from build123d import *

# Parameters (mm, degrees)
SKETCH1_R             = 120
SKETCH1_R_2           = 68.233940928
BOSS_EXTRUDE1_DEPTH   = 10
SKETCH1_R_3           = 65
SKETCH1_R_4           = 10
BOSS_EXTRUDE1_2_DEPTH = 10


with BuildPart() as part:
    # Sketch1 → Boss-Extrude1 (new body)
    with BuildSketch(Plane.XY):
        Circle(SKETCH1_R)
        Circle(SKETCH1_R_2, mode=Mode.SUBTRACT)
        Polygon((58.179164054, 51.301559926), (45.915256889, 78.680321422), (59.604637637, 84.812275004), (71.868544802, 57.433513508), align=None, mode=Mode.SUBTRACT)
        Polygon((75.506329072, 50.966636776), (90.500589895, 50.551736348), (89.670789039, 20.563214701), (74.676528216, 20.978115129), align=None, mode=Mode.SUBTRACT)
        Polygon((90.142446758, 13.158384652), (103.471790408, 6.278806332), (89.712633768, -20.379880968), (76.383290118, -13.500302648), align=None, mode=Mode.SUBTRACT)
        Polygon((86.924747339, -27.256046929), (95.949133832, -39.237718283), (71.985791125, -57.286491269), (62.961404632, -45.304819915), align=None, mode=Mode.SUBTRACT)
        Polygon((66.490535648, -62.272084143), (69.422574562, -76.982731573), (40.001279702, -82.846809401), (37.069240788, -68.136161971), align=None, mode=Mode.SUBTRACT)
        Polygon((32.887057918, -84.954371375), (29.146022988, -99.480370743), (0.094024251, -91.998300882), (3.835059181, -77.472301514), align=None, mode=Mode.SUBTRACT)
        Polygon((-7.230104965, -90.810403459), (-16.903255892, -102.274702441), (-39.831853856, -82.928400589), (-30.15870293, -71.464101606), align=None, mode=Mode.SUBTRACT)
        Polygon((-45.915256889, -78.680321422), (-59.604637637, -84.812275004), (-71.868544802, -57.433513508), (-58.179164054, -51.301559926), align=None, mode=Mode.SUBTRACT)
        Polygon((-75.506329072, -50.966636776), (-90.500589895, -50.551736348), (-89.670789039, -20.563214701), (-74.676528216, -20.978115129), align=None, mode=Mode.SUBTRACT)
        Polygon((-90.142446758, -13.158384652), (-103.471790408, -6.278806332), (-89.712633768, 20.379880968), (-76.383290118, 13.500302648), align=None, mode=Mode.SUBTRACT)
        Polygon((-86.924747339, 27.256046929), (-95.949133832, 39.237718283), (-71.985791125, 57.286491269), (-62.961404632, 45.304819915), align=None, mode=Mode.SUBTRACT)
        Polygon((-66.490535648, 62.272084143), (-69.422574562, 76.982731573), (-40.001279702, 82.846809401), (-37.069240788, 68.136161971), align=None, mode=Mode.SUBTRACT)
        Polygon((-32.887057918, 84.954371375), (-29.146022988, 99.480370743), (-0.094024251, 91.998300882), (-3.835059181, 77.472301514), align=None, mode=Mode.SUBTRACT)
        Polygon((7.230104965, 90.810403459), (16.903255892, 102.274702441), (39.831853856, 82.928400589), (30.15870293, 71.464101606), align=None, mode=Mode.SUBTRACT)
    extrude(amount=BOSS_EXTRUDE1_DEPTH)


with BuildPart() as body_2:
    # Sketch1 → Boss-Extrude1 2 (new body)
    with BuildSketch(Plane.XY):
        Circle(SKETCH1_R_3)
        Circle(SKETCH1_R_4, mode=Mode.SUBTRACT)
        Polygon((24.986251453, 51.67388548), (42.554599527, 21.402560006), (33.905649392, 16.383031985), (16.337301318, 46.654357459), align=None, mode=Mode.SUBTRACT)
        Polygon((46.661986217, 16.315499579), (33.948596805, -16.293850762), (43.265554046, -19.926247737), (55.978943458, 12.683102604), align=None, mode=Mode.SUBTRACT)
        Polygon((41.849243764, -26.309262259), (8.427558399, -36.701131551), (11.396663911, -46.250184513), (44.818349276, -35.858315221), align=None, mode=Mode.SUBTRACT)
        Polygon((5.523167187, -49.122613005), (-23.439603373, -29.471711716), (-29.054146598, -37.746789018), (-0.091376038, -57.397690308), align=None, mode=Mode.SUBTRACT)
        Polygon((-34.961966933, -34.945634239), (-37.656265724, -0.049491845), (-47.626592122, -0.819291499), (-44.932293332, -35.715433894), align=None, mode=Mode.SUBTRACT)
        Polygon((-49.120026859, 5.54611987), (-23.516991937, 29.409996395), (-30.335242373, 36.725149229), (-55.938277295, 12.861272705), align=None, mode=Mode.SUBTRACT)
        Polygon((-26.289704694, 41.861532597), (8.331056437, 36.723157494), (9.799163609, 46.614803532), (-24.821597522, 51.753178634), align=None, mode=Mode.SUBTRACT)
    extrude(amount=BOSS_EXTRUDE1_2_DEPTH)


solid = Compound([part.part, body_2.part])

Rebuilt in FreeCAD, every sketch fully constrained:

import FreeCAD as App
import Part
import Sketcher
from FreeCAD import Vector

doc = App.newDocument("Part")
body = doc.addObject("PartDesign::Body", "Body")

sketch1 = body.newObject("Sketcher::SketchObject", "Sketch")
sketch1.AttachmentSupport = (doc.getObject("XY_Plane"), [""])
sketch1.MapMode = "FlatFace"
sketch1.addGeometry([
    Part.Circle(Vector(0, 0, 0), Vector(0, 0, 1), 120),
    Part.LineSegment(Vector(-58.179164, -51.30156, 0), Vector(-45.915257, -78.680321, 0)),
    Part.LineSegment(Vector(-45.915257, -78.680321, 0), Vector(-59.604638, -84.812275, 0)),
    Part.LineSegment(Vector(-59.604638, -84.812275, 0), Vector(-71.868545, -57.433514, 0)),
    Part.LineSegment(Vector(-71.868545, -57.433514, 0), Vector(-58.179164, -51.30156, 0)),
    Part.LineSegment(Vector(-30.158703, -71.464102, 0), Vector(-7.230105, -90.810403, 0)),
    Part.LineSegment(Vector(-7.230105, -90.810403, 0), Vector(-16.903256, -102.274702, 0)),
    Part.LineSegment(Vector(-16.903256, -102.274702, 0), Vector(-39.831854, -82.928401, 0)),
    Part.LineSegment(Vector(-39.831854, -82.928401, 0), Vector(-30.158703, -71.464102, 0)),
    Part.LineSegment(Vector(-74.676528, -20.978115, 0), Vector(-75.506329, -50.966637, 0)),
    Part.LineSegment(Vector(-75.506329, -50.966637, 0), Vector(-90.50059, -50.551736, 0)),
    Part.LineSegment(Vector(-90.50059, -50.551736, 0), Vector(-89.670789, -20.563215, 0)),
    Part.LineSegment(Vector(-89.670789, -20.563215, 0), Vector(-74.676528, -20.978115, 0)),
    Part.LineSegment(Vector(3.835059, -77.472302, 0), Vector(32.887058, -84.954371, 0)),
    Part.LineSegment(Vector(32.887058, -84.954371, 0), Vector(29.146023, -99.480371, 0)),
    Part.LineSegment(Vector(29.146023, -99.480371, 0), Vector(0.094024, -91.998301, 0)),
    Part.LineSegment(Vector(0.094024, -91.998301, 0), Vector(3.835059, -77.472302, 0)),
    Part.LineSegment(Vector(37.069241, -68.136162, 0), Vector(66.490536, -62.272084, 0)),
    Part.LineSegment(Vector(66.490536, -62.272084, 0), Vector(69.422575, -76.982732, 0)),
    Part.LineSegment(Vector(69.422575, -76.982732, 0), Vector(40.00128, -82.846809, 0)),
    Part.LineSegment(Vector(40.00128, -82.846809, 0), Vector(37.069241, -68.136162, 0)),
    Part.LineSegment(Vector(62.961405, -45.30482, 0), Vector(86.924747, -27.256047, 0)),
    Part.LineSegment(Vector(86.924747, -27.256047, 0), Vector(95.949134, -39.237718, 0)),
    Part.LineSegment(Vector(95.949134, -39.237718, 0), Vector(71.985791, -57.286491, 0)),
    Part.LineSegment(Vector(71.985791, -57.286491, 0), Vector(62.961405, -45.30482, 0)),
    Part.LineSegment(Vector(76.38329, -13.500303, 0), Vector(90.142447, 13.158385, 0)),
    Part.LineSegment(Vector(90.142447, 13.158385, 0), Vector(103.47179, 6.278806, 0)),
    Part.LineSegment(Vector(103.47179, 6.278806, 0), Vector(89.712634, -20.379881, 0)),
    Part.LineSegment(Vector(89.712634, -20.379881, 0), Vector(76.38329, -13.500303, 0)),
    Part.LineSegment(Vector(-76.38329, 13.500303, 0), Vector(-90.142447, -13.158385, 0)),
    Part.LineSegment(Vector(-90.142447, -13.158385, 0), Vector(-103.47179, -6.278806, 0)),
    Part.LineSegment(Vector(-103.47179, -6.278806, 0), Vector(-89.712634, 20.379881, 0)),
    Part.LineSegment(Vector(-89.712634, 20.379881, 0), Vector(-76.38329, 13.500303, 0)),
    Part.LineSegment(Vector(-62.961405, 45.30482, 0), Vector(-86.924747, 27.256047, 0)),
    Part.LineSegment(Vector(-86.924747, 27.256047, 0), Vector(-95.949134, 39.237718, 0)),
    Part.LineSegment(Vector(-95.949134, 39.237718, 0), Vector(-71.985791, 57.286491, 0)),
    Part.LineSegment(Vector(-71.985791, 57.286491, 0), Vector(-62.961405, 45.30482, 0)),
    Part.LineSegment(Vector(-37.069241, 68.136162, 0), Vector(-66.490536, 62.272084, 0)),
    Part.LineSegment(Vector(-66.490536, 62.272084, 0), Vector(-69.422575, 76.982732, 0)),
    Part.LineSegment(Vector(-69.422575, 76.982732, 0), Vector(-40.00128, 82.846809, 0)),
    Part.LineSegment(Vector(-40.00128, 82.846809, 0), Vector(-37.069241, 68.136162, 0)),
    Part.LineSegment(Vector(-3.835059, 77.472302, 0), Vector(-32.887058, 84.954371, 0)),
    Part.LineSegment(Vector(-32.887058, 84.954371, 0), Vector(-29.146023, 99.480371, 0)),
    Part.LineSegment(Vector(-29.146023, 99.480371, 0), Vector(-0.094024, 91.998301, 0)),
    Part.LineSegment(Vector(-0.094024, 91.998301, 0), Vector(-3.835059, 77.472302, 0)),
    Part.Circle(Vector(0, 0, 0), Vector(0, 0, 1), 68.233941),
    Part.LineSegment(Vector(74.676528, 20.978115, 0), Vector(75.506329, 50.966637, 0)),
    Part.LineSegment(Vector(75.506329, 50.966637, 0), Vector(90.50059, 50.551736, 0)),
    Part.LineSegment(Vector(90.50059, 50.551736, 0), Vector(89.670789, 20.563215, 0)),
    Part.LineSegment(Vector(89.670789, 20.563215, 0), Vector(74.676528, 20.978115, 0)),
    Part.LineSegment(Vector(30.158703, 71.464102, 0), Vector(7.230105, 90.810403, 0)),
    Part.LineSegment(Vector(7.230105, 90.810403, 0), Vector(16.903256, 102.274702, 0)),
    Part.LineSegment(Vector(16.903256, 102.274702, 0), Vector(39.831854, 82.928401, 0)),
    Part.LineSegment(Vector(39.831854, 82.928401, 0), Vector(30.158703, 71.464102, 0)),
    Part.LineSegment(Vector(71.868545, 57.433514, 0), Vector(58.179164, 51.30156, 0)),
    Part.LineSegment(Vector(58.179164, 51.30156, 0), Vector(45.915257, 78.680321, 0)),
    Part.LineSegment(Vector(45.915257, 78.680321, 0), Vector(59.604638, 84.812275, 0)),
    Part.LineSegment(Vector(59.604638, 84.812275, 0), Vector(71.868545, 57.433514, 0)),
], False)
sketch1.addConstraint([
    Sketcher.Constraint("Coincident", 1, 2, 2, 1),
    Sketcher.Constraint("Coincident", 2, 2, 3, 1),
    Sketcher.Constraint("Coincident", 3, 2, 4, 1),
    Sketcher.Constraint("Coincident", 4, 2, 1, 1),
    Sketcher.Constraint("Coincident", 5, 2, 6, 1),
    Sketcher.Constraint("Coincident", 6, 2, 7, 1),
    Sketcher.Constraint("Coincident", 7, 2, 8, 1),
    Sketcher.Constraint("Coincident", 8, 2, 5, 1),
    Sketcher.Constraint("Coincident", 9, 2, 10, 1),
    Sketcher.Constraint("Coincident", 10, 2, 11, 1),
    Sketcher.Constraint("Coincident", 11, 2, 12, 1),
    Sketcher.Constraint("Coincident", 12, 2, 9, 1),
    Sketcher.Constraint("Coincident", 13, 2, 14, 1),
    Sketcher.Constraint("Coincident", 14, 2, 15, 1),
    Sketcher.Constraint("Coincident", 15, 2, 16, 1),
    Sketcher.Constraint("Coincident", 16, 2, 13, 1),
    Sketcher.Constraint("Coincident", 17, 2, 18, 1),
    Sketcher.Constraint("Coincident", 18, 2, 19, 1),
    Sketcher.Constraint("Coincident", 19, 2, 20, 1),
    Sketcher.Constraint("Coincident", 20, 2, 17, 1),
    Sketcher.Constraint("Coincident", 21, 2, 22, 1),
    Sketcher.Constraint("Coincident", 22, 2, 23, 1),
    Sketcher.Constraint("Coincident", 23, 2, 24, 1),
    Sketcher.Constraint("Coincident", 24, 2, 21, 1),
    Sketcher.Constraint("Coincident", 25, 2, 26, 1),
    Sketcher.Constraint("Coincident", 26, 2, 27, 1),
    Sketcher.Constraint("Coincident", 27, 2, 28, 1),
    Sketcher.Constraint("Coincident", 28, 2, 25, 1),
    Sketcher.Constraint("Coincident", 29, 2, 30, 1),
    Sketcher.Constraint("Coincident", 30, 2, 31, 1),
    Sketcher.Constraint("Coincident", 31, 2, 32, 1),
    Sketcher.Constraint("Coincident", 32, 2, 29, 1),
    Sketcher.Constraint("Coincident", 33, 2, 34, 1),
    Sketcher.Constraint("Coincident", 34, 2, 35, 1),
    Sketcher.Constraint("Coincident", 35, 2, 36, 1),
    Sketcher.Constraint("Coincident", 36, 2, 33, 1),
    Sketcher.Constraint("Coincident", 37, 2, 38, 1),
    Sketcher.Constraint("Coincident", 38, 2, 39, 1),
    Sketcher.Constraint("Coincident", 39, 2, 40, 1),
    Sketcher.Constraint("Coincident", 40, 2, 37, 1),
    Sketcher.Constraint("Coincident", 41, 2, 42, 1),
    Sketcher.Constraint("Coincident", 42, 2, 43, 1),
    Sketcher.Constraint("Coincident", 43, 2, 44, 1),
    Sketcher.Constraint("Coincident", 44, 2, 41, 1),
    Sketcher.Constraint("Coincident", 46, 2, 47, 1),
    Sketcher.Constraint("Coincident", 47, 2, 48, 1),
    Sketcher.Constraint("Coincident", 48, 2, 49, 1),
    Sketcher.Constraint("Coincident", 49, 2, 46, 1),
    Sketcher.Constraint("Coincident", 50, 2, 51, 1),
    Sketcher.Constraint("Coincident", 51, 2, 52, 1),
    Sketcher.Constraint("Coincident", 52, 2, 53, 1),
    Sketcher.Constraint("Coincident", 53, 2, 50, 1),
    Sketcher.Constraint("Coincident", 54, 2, 55, 1),
    Sketcher.Constraint("Coincident", 55, 2, 56, 1),
    Sketcher.Constraint("Coincident", 56, 2, 57, 1),
    Sketcher.Constraint("Coincident", 57, 2, 54, 1),
    Sketcher.Constraint("Coincident", 0, 3, -1, 1),
    Sketcher.Constraint("Coincident", 45, 3, -1, 1),
    Sketcher.Constraint("Symmetric", 25, 2, 29, 2, -1, 1),
    Sketcher.Constraint("Symmetric", 26, 2, 30, 2, -1, 1),
    Sketcher.Constraint("Symmetric", 27, 2, 31, 2, -1, 1),
    Sketcher.Constraint("Symmetric", 28, 2, 32, 2, -1, 1),
    Sketcher.Constraint("Symmetric", 21, 2, 33, 2, -1, 1),
    Sketcher.Constraint("Symmetric", 22, 2, 34, 2, -1, 1),
    Sketcher.Constraint("Symmetric", 23, 2, 35, 2, -1, 1),
    Sketcher.Constraint("Symmetric", 24, 2, 36, 2, -1, 1),
    Sketcher.Constraint("Symmetric", 17, 2, 37, 2, -1, 1),
    Sketcher.Constraint("Symmetric", 18, 2, 38, 2, -1, 1),
    Sketcher.Constraint("Symmetric", 19, 2, 39, 2, -1, 1),
    Sketcher.Constraint("Symmetric", 20, 2, 40, 2, -1, 1),
    Sketcher.Constraint("Symmetric", 13, 2, 41, 2, -1, 1),
    Sketcher.Constraint("Symmetric", 14, 2, 42, 2, -1, 1),
    Sketcher.Constraint("Symmetric", 15, 2, 43, 2, -1, 1),
    Sketcher.Constraint("Symmetric", 16, 2, 44, 2, -1, 1),
    Sketcher.Constraint("Symmetric", 9, 2, 46, 2, -1, 1),
    Sketcher.Constraint("Symmetric", 10, 2, 47, 2, -1, 1),
    Sketcher.Constraint("Symmetric", 11, 2, 48, 2, -1, 1),
    Sketcher.Constraint("Symmetric", 12, 2, 49, 2, -1, 1),
    Sketcher.Constraint("Symmetric", 5, 2, 50, 2, -1, 1),
    Sketcher.Constraint("Symmetric", 6, 2, 51, 2, -1, 1),
    Sketcher.Constraint("Symmetric", 7, 2, 52, 2, -1, 1),
    Sketcher.Constraint("Symmetric", 8, 2, 53, 2, -1, 1),
    Sketcher.Constraint("Symmetric", 4, 2, 54, 2, -1, 1),
    Sketcher.Constraint("Symmetric", 1, 2, 55, 2, -1, 1),
    Sketcher.Constraint("Symmetric", 2, 2, 56, 2, -1, 1),
    Sketcher.Constraint("Symmetric", 3, 2, 57, 2, -1, 1),
    Sketcher.Constraint("Perpendicular", 1, 2),
    Sketcher.Constraint("Perpendicular", 2, 3),
    Sketcher.Constraint("Perpendicular", 3, 4),
    Sketcher.Constraint("Perpendicular", 5, 6),
    Sketcher.Constraint("Perpendicular", 6, 7),
    Sketcher.Constraint("Perpendicular", 7, 8),
    Sketcher.Constraint("Perpendicular", 9, 10),
    Sketcher.Constraint("Perpendicular", 10, 11),
    Sketcher.Constraint("Perpendicular", 11, 12),
    Sketcher.Constraint("Perpendicular", 13, 14),
    Sketcher.Constraint("Perpendicular", 14, 15),
    Sketcher.Constraint("Perpendicular", 15, 16),
    Sketcher.Constraint("Perpendicular", 17, 18),
    Sketcher.Constraint("Perpendicular", 18, 19),
    Sketcher.Constraint("Perpendicular", 19, 20),
    Sketcher.Constraint("Perpendicular", 21, 22),
    Sketcher.Constraint("Perpendicular", 22, 23),
    Sketcher.Constraint("Perpendicular", 23, 24),
    Sketcher.Constraint("Perpendicular", 25, 26),
    Sketcher.Constraint("Perpendicular", 26, 27),
    Sketcher.Constraint("Perpendicular", 27, 28),
    Sketcher.Constraint("Equal", 3, 5),
    Sketcher.Constraint("Equal", 4, 6),
    Sketcher.Constraint("Equal", 7, 9),
    Sketcher.Constraint("Equal", 8, 10),
    Sketcher.Constraint("Equal", 11, 13),
    Sketcher.Constraint("Equal", 12, 14),
    Sketcher.Constraint("Equal", 15, 17),
    Sketcher.Constraint("Equal", 16, 18),
    Sketcher.Constraint("Equal", 19, 21),
    Sketcher.Constraint("Equal", 20, 22),
    Sketcher.Constraint("Equal", 23, 25),
    Sketcher.Constraint("Equal", 24, 26),
    Sketcher.Constraint("Diameter", 0, 240.0),
    Sketcher.Constraint("Distance", 1, 30.0),
    Sketcher.Constraint("Distance", 2, 15.0),
    Sketcher.Constraint("Diameter", 45, 136.467882),
    Sketcher.Constraint("DistanceX", 1, 2, 6, 2, 29.012001),
    Sketcher.Constraint("DistanceY", 14, 2, 13, 2, 14.525999),
    Sketcher.Constraint("DistanceX", 23, 2, 26, 2, 31.485999),
    Sketcher.Constraint("DistanceX", 30, 2, 11, 2, 13.801001),
    Sketcher.Constraint("DistanceY", 7, 2, -1, 1, 82.928401),
    Sketcher.Constraint("DistanceY", 8, 2, -1, 1, 71.464102),
    Sketcher.Constraint("DistanceY", 15, 2, -1, 1, 91.998301),
    Sketcher.Constraint("DistanceY", 9, 2, 10, 2, 0.4149),
    Sketcher.Constraint("DistanceY", 3, 2, 11, 2, 36.870299),
    Sketcher.Constraint("DistanceX", 17, 2, 22, 2, 29.458598),
    Sketcher.Constraint("DistanceY", 24, 2, 22, 2, 6.067102),
    Sketcher.Constraint("DistanceX", 21, 2, 25, 2, 3.217699),
    Sketcher.Constraint("DistanceX", 29, 2, 3, 2, 18.273902),
    Sketcher.Constraint("DistanceY", 1, 2, -1, 1, 78.680321),
    Sketcher.Constraint("DistanceY", 4, 2, -1, 1, 51.30156),
    Sketcher.Constraint("DistanceX", 9, 2, -1, 1, 75.506329),
    Sketcher.Constraint("DistanceX", -1, 1, 16, 2, 3.835059),
    Sketcher.Constraint("DistanceY", 18, 2, -1, 1, 76.982732),
    Sketcher.Constraint("DistanceX", -1, 1, 19, 2, 40.00128),
    Sketcher.Constraint("DistanceY", 22, 2, -1, 1, 39.237718),
    Sketcher.Constraint("DistanceY", 27, 2, -1, 1, 20.379881),
])
pad1 = body.newObject("PartDesign::Pad", "Pad")
pad1.Profile = sketch1
pad1.Length = 10
body2 = doc.addObject("PartDesign::Body", "Body001")

sketch2 = body2.newObject("Sketcher::SketchObject", "Sketch001")
sketch2.AttachmentSupport = (doc.getObject("XY_Plane001"), [""])
sketch2.MapMode = "FlatFace"
sketch2.addGeometry([
    Part.Circle(Vector(0, 0, 0), Vector(0, 0, 1), 65),
    Part.LineSegment(Vector(-23.439603, -29.471712, 0), Vector(5.523167, -49.122613, 0)),
    Part.LineSegment(Vector(5.523167, -49.122613, 0), Vector(-0.091376, -57.39769, 0)),
    Part.LineSegment(Vector(-0.091376, -57.39769, 0), Vector(-29.054147, -37.746789, 0)),
    Part.LineSegment(Vector(-29.054147, -37.746789, 0), Vector(-23.439603, -29.471712, 0)),
    Part.LineSegment(Vector(-37.656266, -0.049492, 0), Vector(-34.961967, -34.945634, 0)),
    Part.LineSegment(Vector(-34.961967, -34.945634, 0), Vector(-44.932293, -35.715434, 0)),
    Part.LineSegment(Vector(-44.932293, -35.715434, 0), Vector(-47.626592, -0.819291, 0)),
    Part.LineSegment(Vector(-47.626592, -0.819291, 0), Vector(-37.656266, -0.049492, 0)),
    Part.LineSegment(Vector(8.427558, -36.701132, 0), Vector(41.849244, -26.309262, 0)),
    Part.LineSegment(Vector(41.849244, -26.309262, 0), Vector(44.818349, -35.858315, 0)),
    Part.LineSegment(Vector(44.818349, -35.858315, 0), Vector(11.396664, -46.250185, 0)),
    Part.LineSegment(Vector(11.396664, -46.250185, 0), Vector(8.427558, -36.701132, 0)),
    Part.LineSegment(Vector(-23.516992, 29.409996, 0), Vector(-49.120027, 5.54612, 0)),
    Part.LineSegment(Vector(-49.120027, 5.54612, 0), Vector(-55.938277, 12.861273, 0)),
    Part.LineSegment(Vector(-55.938277, 12.861273, 0), Vector(-30.335242, 36.725149, 0)),
    Part.LineSegment(Vector(-30.335242, 36.725149, 0), Vector(-23.516992, 29.409996, 0)),
    Part.Circle(Vector(0, 0, 0), Vector(0, 0, 1), 10),
    Part.LineSegment(Vector(8.331056, 36.723157, 0), Vector(-26.289705, 41.861533, 0)),
    Part.LineSegment(Vector(-26.289705, 41.861533, 0), Vector(-24.821598, 51.753179, 0)),
    Part.LineSegment(Vector(-24.821598, 51.753179, 0), Vector(9.799164, 46.614804, 0)),
    Part.LineSegment(Vector(9.799164, 46.614804, 0), Vector(8.331056, 36.723157, 0)),
    Part.LineSegment(Vector(33.948597, -16.293851, 0), Vector(46.661986, 16.3155, 0)),
    Part.LineSegment(Vector(46.661986, 16.3155, 0), Vector(55.978943, 12.683103, 0)),
    Part.LineSegment(Vector(55.978943, 12.683103, 0), Vector(43.265554, -19.926248, 0)),
    Part.LineSegment(Vector(43.265554, -19.926248, 0), Vector(33.948597, -16.293851, 0)),
    Part.LineSegment(Vector(16.337301, 46.654357, 0), Vector(24.986251, 51.673885, 0)),
    Part.LineSegment(Vector(24.986251, 51.673885, 0), Vector(42.5546, 21.40256, 0)),
    Part.LineSegment(Vector(42.5546, 21.40256, 0), Vector(33.905649, 16.383032, 0)),
    Part.LineSegment(Vector(33.905649, 16.383032, 0), Vector(16.337301, 46.654357, 0)),
], False)
sketch2.addConstraint([
    Sketcher.Constraint("Coincident", 1, 2, 2, 1),
    Sketcher.Constraint("Coincident", 2, 2, 3, 1),
    Sketcher.Constraint("Coincident", 3, 2, 4, 1),
    Sketcher.Constraint("Coincident", 4, 2, 1, 1),
    Sketcher.Constraint("Coincident", 5, 2, 6, 1),
    Sketcher.Constraint("Coincident", 6, 2, 7, 1),
    Sketcher.Constraint("Coincident", 7, 2, 8, 1),
    Sketcher.Constraint("Coincident", 8, 2, 5, 1),
    Sketcher.Constraint("Coincident", 9, 2, 10, 1),
    Sketcher.Constraint("Coincident", 10, 2, 11, 1),
    Sketcher.Constraint("Coincident", 11, 2, 12, 1),
    Sketcher.Constraint("Coincident", 12, 2, 9, 1),
    Sketcher.Constraint("Coincident", 13, 2, 14, 1),
    Sketcher.Constraint("Coincident", 14, 2, 15, 1),
    Sketcher.Constraint("Coincident", 15, 2, 16, 1),
    Sketcher.Constraint("Coincident", 16, 2, 13, 1),
    Sketcher.Constraint("Coincident", 18, 2, 19, 1),
    Sketcher.Constraint("Coincident", 19, 2, 20, 1),
    Sketcher.Constraint("Coincident", 20, 2, 21, 1),
    Sketcher.Constraint("Coincident", 21, 2, 18, 1),
    Sketcher.Constraint("Coincident", 22, 2, 23, 1),
    Sketcher.Constraint("Coincident", 23, 2, 24, 1),
    Sketcher.Constraint("Coincident", 24, 2, 25, 1),
    Sketcher.Constraint("Coincident", 25, 2, 22, 1),
    Sketcher.Constraint("Coincident", 26, 2, 27, 1),
    Sketcher.Constraint("Coincident", 27, 2, 28, 1),
    Sketcher.Constraint("Coincident", 28, 2, 29, 1),
    Sketcher.Constraint("Coincident", 29, 2, 26, 1),
    Sketcher.Constraint("Coincident", 0, 3, -1, 1),
    Sketcher.Constraint("Coincident", 17, 3, -1, 1),
    Sketcher.Constraint("Perpendicular", 1, 2),
    Sketcher.Constraint("Perpendicular", 2, 3),
    Sketcher.Constraint("Perpendicular", 3, 4),
    Sketcher.Constraint("Perpendicular", 5, 6),
    Sketcher.Constraint("Perpendicular", 6, 7),
    Sketcher.Constraint("Perpendicular", 7, 8),
    Sketcher.Constraint("Perpendicular", 9, 10),
    Sketcher.Constraint("Perpendicular", 10, 11),
    Sketcher.Constraint("Perpendicular", 11, 12),
    Sketcher.Constraint("Perpendicular", 13, 14),
    Sketcher.Constraint("Perpendicular", 14, 15),
    Sketcher.Constraint("Perpendicular", 15, 16),
    Sketcher.Constraint("Perpendicular", 18, 19),
    Sketcher.Constraint("Perpendicular", 19, 20),
    Sketcher.Constraint("Perpendicular", 20, 21),
    Sketcher.Constraint("Perpendicular", 22, 23),
    Sketcher.Constraint("Perpendicular", 23, 24),
    Sketcher.Constraint("Perpendicular", 24, 25),
    Sketcher.Constraint("Perpendicular", 26, 27),
    Sketcher.Constraint("Perpendicular", 27, 28),
    Sketcher.Constraint("Perpendicular", 28, 29),
    Sketcher.Constraint("Equal", 3, 5),
    Sketcher.Constraint("Equal", 4, 6),
    Sketcher.Constraint("Equal", 7, 9),
    Sketcher.Constraint("Equal", 8, 10),
    Sketcher.Constraint("Equal", 11, 13),
    Sketcher.Constraint("Equal", 12, 14),
    Sketcher.Constraint("Equal", 15, 18),
    Sketcher.Constraint("Equal", 16, 19),
    Sketcher.Constraint("Equal", 20, 22),
    Sketcher.Constraint("Equal", 21, 23),
    Sketcher.Constraint("Equal", 25, 26),
    Sketcher.Constraint("Equal", 24, 27),
    Sketcher.Constraint("Diameter", 0, 130.0),
    Sketcher.Constraint("Diameter", 17, 20.0),
    Sketcher.Constraint("Distance", 1, 35.0),
    Sketcher.Constraint("Distance", 2, 10.0),
    Sketcher.Constraint("DistanceY", -1, 1, 22, 2, 16.3155),
    Sketcher.Constraint("DistanceX", -1, 1, 27, 2, 42.5546),
    Sketcher.Constraint("DistanceX", -1, 1, 29, 2, 16.337301),
    Sketcher.Constraint("DistanceY", 2, 2, 3, 2, 19.650901),
    Sketcher.Constraint("DistanceY", 6, 2, 5, 2, 0.7698),
    Sketcher.Constraint("DistanceX", 9, 2, 23, 2, 14.1297),
    Sketcher.Constraint("DistanceY", 23, 2, 20, 2, 33.931701),
    Sketcher.Constraint("DistanceY", 21, 2, 29, 2, 9.9312),
    Sketcher.Constraint("DistanceY", 2, 2, -1, 1, 57.39769),
    Sketcher.Constraint("DistanceY", 7, 2, -1, 1, 0.819291),
    Sketcher.Constraint("DistanceX", -1, 1, 10, 2, 44.818349),
    Sketcher.Constraint("DistanceX", -1, 1, 12, 2, 8.427558),
    Sketcher.Constraint("DistanceY", 12, 2, -1, 1, 36.701132),
    Sketcher.Constraint("DistanceY", -1, 1, 13, 2, 5.54612),
    Sketcher.Constraint("DistanceY", -1, 1, 15, 2, 36.725149),
    Sketcher.Constraint("DistanceX", 16, 2, -1, 1, 23.516992),
    Sketcher.Constraint("DistanceY", -1, 1, 19, 2, 51.753179),
    Sketcher.Constraint("DistanceY", 25, 2, -1, 1, 16.293851),
    Sketcher.Constraint("DistanceX", 5, 2, 3, 2, 5.90782),
    Sketcher.Constraint("DistanceX", 2, 2, 9, 2, 41.94062),
    Sketcher.Constraint("DistanceX", 8, 2, 18, 2, 11.366561),
])
pad2 = body2.newObject("PartDesign::Pad", "Pad001")
pad2.Profile = sketch2
pad2.Length = 10

doc.recompute()
